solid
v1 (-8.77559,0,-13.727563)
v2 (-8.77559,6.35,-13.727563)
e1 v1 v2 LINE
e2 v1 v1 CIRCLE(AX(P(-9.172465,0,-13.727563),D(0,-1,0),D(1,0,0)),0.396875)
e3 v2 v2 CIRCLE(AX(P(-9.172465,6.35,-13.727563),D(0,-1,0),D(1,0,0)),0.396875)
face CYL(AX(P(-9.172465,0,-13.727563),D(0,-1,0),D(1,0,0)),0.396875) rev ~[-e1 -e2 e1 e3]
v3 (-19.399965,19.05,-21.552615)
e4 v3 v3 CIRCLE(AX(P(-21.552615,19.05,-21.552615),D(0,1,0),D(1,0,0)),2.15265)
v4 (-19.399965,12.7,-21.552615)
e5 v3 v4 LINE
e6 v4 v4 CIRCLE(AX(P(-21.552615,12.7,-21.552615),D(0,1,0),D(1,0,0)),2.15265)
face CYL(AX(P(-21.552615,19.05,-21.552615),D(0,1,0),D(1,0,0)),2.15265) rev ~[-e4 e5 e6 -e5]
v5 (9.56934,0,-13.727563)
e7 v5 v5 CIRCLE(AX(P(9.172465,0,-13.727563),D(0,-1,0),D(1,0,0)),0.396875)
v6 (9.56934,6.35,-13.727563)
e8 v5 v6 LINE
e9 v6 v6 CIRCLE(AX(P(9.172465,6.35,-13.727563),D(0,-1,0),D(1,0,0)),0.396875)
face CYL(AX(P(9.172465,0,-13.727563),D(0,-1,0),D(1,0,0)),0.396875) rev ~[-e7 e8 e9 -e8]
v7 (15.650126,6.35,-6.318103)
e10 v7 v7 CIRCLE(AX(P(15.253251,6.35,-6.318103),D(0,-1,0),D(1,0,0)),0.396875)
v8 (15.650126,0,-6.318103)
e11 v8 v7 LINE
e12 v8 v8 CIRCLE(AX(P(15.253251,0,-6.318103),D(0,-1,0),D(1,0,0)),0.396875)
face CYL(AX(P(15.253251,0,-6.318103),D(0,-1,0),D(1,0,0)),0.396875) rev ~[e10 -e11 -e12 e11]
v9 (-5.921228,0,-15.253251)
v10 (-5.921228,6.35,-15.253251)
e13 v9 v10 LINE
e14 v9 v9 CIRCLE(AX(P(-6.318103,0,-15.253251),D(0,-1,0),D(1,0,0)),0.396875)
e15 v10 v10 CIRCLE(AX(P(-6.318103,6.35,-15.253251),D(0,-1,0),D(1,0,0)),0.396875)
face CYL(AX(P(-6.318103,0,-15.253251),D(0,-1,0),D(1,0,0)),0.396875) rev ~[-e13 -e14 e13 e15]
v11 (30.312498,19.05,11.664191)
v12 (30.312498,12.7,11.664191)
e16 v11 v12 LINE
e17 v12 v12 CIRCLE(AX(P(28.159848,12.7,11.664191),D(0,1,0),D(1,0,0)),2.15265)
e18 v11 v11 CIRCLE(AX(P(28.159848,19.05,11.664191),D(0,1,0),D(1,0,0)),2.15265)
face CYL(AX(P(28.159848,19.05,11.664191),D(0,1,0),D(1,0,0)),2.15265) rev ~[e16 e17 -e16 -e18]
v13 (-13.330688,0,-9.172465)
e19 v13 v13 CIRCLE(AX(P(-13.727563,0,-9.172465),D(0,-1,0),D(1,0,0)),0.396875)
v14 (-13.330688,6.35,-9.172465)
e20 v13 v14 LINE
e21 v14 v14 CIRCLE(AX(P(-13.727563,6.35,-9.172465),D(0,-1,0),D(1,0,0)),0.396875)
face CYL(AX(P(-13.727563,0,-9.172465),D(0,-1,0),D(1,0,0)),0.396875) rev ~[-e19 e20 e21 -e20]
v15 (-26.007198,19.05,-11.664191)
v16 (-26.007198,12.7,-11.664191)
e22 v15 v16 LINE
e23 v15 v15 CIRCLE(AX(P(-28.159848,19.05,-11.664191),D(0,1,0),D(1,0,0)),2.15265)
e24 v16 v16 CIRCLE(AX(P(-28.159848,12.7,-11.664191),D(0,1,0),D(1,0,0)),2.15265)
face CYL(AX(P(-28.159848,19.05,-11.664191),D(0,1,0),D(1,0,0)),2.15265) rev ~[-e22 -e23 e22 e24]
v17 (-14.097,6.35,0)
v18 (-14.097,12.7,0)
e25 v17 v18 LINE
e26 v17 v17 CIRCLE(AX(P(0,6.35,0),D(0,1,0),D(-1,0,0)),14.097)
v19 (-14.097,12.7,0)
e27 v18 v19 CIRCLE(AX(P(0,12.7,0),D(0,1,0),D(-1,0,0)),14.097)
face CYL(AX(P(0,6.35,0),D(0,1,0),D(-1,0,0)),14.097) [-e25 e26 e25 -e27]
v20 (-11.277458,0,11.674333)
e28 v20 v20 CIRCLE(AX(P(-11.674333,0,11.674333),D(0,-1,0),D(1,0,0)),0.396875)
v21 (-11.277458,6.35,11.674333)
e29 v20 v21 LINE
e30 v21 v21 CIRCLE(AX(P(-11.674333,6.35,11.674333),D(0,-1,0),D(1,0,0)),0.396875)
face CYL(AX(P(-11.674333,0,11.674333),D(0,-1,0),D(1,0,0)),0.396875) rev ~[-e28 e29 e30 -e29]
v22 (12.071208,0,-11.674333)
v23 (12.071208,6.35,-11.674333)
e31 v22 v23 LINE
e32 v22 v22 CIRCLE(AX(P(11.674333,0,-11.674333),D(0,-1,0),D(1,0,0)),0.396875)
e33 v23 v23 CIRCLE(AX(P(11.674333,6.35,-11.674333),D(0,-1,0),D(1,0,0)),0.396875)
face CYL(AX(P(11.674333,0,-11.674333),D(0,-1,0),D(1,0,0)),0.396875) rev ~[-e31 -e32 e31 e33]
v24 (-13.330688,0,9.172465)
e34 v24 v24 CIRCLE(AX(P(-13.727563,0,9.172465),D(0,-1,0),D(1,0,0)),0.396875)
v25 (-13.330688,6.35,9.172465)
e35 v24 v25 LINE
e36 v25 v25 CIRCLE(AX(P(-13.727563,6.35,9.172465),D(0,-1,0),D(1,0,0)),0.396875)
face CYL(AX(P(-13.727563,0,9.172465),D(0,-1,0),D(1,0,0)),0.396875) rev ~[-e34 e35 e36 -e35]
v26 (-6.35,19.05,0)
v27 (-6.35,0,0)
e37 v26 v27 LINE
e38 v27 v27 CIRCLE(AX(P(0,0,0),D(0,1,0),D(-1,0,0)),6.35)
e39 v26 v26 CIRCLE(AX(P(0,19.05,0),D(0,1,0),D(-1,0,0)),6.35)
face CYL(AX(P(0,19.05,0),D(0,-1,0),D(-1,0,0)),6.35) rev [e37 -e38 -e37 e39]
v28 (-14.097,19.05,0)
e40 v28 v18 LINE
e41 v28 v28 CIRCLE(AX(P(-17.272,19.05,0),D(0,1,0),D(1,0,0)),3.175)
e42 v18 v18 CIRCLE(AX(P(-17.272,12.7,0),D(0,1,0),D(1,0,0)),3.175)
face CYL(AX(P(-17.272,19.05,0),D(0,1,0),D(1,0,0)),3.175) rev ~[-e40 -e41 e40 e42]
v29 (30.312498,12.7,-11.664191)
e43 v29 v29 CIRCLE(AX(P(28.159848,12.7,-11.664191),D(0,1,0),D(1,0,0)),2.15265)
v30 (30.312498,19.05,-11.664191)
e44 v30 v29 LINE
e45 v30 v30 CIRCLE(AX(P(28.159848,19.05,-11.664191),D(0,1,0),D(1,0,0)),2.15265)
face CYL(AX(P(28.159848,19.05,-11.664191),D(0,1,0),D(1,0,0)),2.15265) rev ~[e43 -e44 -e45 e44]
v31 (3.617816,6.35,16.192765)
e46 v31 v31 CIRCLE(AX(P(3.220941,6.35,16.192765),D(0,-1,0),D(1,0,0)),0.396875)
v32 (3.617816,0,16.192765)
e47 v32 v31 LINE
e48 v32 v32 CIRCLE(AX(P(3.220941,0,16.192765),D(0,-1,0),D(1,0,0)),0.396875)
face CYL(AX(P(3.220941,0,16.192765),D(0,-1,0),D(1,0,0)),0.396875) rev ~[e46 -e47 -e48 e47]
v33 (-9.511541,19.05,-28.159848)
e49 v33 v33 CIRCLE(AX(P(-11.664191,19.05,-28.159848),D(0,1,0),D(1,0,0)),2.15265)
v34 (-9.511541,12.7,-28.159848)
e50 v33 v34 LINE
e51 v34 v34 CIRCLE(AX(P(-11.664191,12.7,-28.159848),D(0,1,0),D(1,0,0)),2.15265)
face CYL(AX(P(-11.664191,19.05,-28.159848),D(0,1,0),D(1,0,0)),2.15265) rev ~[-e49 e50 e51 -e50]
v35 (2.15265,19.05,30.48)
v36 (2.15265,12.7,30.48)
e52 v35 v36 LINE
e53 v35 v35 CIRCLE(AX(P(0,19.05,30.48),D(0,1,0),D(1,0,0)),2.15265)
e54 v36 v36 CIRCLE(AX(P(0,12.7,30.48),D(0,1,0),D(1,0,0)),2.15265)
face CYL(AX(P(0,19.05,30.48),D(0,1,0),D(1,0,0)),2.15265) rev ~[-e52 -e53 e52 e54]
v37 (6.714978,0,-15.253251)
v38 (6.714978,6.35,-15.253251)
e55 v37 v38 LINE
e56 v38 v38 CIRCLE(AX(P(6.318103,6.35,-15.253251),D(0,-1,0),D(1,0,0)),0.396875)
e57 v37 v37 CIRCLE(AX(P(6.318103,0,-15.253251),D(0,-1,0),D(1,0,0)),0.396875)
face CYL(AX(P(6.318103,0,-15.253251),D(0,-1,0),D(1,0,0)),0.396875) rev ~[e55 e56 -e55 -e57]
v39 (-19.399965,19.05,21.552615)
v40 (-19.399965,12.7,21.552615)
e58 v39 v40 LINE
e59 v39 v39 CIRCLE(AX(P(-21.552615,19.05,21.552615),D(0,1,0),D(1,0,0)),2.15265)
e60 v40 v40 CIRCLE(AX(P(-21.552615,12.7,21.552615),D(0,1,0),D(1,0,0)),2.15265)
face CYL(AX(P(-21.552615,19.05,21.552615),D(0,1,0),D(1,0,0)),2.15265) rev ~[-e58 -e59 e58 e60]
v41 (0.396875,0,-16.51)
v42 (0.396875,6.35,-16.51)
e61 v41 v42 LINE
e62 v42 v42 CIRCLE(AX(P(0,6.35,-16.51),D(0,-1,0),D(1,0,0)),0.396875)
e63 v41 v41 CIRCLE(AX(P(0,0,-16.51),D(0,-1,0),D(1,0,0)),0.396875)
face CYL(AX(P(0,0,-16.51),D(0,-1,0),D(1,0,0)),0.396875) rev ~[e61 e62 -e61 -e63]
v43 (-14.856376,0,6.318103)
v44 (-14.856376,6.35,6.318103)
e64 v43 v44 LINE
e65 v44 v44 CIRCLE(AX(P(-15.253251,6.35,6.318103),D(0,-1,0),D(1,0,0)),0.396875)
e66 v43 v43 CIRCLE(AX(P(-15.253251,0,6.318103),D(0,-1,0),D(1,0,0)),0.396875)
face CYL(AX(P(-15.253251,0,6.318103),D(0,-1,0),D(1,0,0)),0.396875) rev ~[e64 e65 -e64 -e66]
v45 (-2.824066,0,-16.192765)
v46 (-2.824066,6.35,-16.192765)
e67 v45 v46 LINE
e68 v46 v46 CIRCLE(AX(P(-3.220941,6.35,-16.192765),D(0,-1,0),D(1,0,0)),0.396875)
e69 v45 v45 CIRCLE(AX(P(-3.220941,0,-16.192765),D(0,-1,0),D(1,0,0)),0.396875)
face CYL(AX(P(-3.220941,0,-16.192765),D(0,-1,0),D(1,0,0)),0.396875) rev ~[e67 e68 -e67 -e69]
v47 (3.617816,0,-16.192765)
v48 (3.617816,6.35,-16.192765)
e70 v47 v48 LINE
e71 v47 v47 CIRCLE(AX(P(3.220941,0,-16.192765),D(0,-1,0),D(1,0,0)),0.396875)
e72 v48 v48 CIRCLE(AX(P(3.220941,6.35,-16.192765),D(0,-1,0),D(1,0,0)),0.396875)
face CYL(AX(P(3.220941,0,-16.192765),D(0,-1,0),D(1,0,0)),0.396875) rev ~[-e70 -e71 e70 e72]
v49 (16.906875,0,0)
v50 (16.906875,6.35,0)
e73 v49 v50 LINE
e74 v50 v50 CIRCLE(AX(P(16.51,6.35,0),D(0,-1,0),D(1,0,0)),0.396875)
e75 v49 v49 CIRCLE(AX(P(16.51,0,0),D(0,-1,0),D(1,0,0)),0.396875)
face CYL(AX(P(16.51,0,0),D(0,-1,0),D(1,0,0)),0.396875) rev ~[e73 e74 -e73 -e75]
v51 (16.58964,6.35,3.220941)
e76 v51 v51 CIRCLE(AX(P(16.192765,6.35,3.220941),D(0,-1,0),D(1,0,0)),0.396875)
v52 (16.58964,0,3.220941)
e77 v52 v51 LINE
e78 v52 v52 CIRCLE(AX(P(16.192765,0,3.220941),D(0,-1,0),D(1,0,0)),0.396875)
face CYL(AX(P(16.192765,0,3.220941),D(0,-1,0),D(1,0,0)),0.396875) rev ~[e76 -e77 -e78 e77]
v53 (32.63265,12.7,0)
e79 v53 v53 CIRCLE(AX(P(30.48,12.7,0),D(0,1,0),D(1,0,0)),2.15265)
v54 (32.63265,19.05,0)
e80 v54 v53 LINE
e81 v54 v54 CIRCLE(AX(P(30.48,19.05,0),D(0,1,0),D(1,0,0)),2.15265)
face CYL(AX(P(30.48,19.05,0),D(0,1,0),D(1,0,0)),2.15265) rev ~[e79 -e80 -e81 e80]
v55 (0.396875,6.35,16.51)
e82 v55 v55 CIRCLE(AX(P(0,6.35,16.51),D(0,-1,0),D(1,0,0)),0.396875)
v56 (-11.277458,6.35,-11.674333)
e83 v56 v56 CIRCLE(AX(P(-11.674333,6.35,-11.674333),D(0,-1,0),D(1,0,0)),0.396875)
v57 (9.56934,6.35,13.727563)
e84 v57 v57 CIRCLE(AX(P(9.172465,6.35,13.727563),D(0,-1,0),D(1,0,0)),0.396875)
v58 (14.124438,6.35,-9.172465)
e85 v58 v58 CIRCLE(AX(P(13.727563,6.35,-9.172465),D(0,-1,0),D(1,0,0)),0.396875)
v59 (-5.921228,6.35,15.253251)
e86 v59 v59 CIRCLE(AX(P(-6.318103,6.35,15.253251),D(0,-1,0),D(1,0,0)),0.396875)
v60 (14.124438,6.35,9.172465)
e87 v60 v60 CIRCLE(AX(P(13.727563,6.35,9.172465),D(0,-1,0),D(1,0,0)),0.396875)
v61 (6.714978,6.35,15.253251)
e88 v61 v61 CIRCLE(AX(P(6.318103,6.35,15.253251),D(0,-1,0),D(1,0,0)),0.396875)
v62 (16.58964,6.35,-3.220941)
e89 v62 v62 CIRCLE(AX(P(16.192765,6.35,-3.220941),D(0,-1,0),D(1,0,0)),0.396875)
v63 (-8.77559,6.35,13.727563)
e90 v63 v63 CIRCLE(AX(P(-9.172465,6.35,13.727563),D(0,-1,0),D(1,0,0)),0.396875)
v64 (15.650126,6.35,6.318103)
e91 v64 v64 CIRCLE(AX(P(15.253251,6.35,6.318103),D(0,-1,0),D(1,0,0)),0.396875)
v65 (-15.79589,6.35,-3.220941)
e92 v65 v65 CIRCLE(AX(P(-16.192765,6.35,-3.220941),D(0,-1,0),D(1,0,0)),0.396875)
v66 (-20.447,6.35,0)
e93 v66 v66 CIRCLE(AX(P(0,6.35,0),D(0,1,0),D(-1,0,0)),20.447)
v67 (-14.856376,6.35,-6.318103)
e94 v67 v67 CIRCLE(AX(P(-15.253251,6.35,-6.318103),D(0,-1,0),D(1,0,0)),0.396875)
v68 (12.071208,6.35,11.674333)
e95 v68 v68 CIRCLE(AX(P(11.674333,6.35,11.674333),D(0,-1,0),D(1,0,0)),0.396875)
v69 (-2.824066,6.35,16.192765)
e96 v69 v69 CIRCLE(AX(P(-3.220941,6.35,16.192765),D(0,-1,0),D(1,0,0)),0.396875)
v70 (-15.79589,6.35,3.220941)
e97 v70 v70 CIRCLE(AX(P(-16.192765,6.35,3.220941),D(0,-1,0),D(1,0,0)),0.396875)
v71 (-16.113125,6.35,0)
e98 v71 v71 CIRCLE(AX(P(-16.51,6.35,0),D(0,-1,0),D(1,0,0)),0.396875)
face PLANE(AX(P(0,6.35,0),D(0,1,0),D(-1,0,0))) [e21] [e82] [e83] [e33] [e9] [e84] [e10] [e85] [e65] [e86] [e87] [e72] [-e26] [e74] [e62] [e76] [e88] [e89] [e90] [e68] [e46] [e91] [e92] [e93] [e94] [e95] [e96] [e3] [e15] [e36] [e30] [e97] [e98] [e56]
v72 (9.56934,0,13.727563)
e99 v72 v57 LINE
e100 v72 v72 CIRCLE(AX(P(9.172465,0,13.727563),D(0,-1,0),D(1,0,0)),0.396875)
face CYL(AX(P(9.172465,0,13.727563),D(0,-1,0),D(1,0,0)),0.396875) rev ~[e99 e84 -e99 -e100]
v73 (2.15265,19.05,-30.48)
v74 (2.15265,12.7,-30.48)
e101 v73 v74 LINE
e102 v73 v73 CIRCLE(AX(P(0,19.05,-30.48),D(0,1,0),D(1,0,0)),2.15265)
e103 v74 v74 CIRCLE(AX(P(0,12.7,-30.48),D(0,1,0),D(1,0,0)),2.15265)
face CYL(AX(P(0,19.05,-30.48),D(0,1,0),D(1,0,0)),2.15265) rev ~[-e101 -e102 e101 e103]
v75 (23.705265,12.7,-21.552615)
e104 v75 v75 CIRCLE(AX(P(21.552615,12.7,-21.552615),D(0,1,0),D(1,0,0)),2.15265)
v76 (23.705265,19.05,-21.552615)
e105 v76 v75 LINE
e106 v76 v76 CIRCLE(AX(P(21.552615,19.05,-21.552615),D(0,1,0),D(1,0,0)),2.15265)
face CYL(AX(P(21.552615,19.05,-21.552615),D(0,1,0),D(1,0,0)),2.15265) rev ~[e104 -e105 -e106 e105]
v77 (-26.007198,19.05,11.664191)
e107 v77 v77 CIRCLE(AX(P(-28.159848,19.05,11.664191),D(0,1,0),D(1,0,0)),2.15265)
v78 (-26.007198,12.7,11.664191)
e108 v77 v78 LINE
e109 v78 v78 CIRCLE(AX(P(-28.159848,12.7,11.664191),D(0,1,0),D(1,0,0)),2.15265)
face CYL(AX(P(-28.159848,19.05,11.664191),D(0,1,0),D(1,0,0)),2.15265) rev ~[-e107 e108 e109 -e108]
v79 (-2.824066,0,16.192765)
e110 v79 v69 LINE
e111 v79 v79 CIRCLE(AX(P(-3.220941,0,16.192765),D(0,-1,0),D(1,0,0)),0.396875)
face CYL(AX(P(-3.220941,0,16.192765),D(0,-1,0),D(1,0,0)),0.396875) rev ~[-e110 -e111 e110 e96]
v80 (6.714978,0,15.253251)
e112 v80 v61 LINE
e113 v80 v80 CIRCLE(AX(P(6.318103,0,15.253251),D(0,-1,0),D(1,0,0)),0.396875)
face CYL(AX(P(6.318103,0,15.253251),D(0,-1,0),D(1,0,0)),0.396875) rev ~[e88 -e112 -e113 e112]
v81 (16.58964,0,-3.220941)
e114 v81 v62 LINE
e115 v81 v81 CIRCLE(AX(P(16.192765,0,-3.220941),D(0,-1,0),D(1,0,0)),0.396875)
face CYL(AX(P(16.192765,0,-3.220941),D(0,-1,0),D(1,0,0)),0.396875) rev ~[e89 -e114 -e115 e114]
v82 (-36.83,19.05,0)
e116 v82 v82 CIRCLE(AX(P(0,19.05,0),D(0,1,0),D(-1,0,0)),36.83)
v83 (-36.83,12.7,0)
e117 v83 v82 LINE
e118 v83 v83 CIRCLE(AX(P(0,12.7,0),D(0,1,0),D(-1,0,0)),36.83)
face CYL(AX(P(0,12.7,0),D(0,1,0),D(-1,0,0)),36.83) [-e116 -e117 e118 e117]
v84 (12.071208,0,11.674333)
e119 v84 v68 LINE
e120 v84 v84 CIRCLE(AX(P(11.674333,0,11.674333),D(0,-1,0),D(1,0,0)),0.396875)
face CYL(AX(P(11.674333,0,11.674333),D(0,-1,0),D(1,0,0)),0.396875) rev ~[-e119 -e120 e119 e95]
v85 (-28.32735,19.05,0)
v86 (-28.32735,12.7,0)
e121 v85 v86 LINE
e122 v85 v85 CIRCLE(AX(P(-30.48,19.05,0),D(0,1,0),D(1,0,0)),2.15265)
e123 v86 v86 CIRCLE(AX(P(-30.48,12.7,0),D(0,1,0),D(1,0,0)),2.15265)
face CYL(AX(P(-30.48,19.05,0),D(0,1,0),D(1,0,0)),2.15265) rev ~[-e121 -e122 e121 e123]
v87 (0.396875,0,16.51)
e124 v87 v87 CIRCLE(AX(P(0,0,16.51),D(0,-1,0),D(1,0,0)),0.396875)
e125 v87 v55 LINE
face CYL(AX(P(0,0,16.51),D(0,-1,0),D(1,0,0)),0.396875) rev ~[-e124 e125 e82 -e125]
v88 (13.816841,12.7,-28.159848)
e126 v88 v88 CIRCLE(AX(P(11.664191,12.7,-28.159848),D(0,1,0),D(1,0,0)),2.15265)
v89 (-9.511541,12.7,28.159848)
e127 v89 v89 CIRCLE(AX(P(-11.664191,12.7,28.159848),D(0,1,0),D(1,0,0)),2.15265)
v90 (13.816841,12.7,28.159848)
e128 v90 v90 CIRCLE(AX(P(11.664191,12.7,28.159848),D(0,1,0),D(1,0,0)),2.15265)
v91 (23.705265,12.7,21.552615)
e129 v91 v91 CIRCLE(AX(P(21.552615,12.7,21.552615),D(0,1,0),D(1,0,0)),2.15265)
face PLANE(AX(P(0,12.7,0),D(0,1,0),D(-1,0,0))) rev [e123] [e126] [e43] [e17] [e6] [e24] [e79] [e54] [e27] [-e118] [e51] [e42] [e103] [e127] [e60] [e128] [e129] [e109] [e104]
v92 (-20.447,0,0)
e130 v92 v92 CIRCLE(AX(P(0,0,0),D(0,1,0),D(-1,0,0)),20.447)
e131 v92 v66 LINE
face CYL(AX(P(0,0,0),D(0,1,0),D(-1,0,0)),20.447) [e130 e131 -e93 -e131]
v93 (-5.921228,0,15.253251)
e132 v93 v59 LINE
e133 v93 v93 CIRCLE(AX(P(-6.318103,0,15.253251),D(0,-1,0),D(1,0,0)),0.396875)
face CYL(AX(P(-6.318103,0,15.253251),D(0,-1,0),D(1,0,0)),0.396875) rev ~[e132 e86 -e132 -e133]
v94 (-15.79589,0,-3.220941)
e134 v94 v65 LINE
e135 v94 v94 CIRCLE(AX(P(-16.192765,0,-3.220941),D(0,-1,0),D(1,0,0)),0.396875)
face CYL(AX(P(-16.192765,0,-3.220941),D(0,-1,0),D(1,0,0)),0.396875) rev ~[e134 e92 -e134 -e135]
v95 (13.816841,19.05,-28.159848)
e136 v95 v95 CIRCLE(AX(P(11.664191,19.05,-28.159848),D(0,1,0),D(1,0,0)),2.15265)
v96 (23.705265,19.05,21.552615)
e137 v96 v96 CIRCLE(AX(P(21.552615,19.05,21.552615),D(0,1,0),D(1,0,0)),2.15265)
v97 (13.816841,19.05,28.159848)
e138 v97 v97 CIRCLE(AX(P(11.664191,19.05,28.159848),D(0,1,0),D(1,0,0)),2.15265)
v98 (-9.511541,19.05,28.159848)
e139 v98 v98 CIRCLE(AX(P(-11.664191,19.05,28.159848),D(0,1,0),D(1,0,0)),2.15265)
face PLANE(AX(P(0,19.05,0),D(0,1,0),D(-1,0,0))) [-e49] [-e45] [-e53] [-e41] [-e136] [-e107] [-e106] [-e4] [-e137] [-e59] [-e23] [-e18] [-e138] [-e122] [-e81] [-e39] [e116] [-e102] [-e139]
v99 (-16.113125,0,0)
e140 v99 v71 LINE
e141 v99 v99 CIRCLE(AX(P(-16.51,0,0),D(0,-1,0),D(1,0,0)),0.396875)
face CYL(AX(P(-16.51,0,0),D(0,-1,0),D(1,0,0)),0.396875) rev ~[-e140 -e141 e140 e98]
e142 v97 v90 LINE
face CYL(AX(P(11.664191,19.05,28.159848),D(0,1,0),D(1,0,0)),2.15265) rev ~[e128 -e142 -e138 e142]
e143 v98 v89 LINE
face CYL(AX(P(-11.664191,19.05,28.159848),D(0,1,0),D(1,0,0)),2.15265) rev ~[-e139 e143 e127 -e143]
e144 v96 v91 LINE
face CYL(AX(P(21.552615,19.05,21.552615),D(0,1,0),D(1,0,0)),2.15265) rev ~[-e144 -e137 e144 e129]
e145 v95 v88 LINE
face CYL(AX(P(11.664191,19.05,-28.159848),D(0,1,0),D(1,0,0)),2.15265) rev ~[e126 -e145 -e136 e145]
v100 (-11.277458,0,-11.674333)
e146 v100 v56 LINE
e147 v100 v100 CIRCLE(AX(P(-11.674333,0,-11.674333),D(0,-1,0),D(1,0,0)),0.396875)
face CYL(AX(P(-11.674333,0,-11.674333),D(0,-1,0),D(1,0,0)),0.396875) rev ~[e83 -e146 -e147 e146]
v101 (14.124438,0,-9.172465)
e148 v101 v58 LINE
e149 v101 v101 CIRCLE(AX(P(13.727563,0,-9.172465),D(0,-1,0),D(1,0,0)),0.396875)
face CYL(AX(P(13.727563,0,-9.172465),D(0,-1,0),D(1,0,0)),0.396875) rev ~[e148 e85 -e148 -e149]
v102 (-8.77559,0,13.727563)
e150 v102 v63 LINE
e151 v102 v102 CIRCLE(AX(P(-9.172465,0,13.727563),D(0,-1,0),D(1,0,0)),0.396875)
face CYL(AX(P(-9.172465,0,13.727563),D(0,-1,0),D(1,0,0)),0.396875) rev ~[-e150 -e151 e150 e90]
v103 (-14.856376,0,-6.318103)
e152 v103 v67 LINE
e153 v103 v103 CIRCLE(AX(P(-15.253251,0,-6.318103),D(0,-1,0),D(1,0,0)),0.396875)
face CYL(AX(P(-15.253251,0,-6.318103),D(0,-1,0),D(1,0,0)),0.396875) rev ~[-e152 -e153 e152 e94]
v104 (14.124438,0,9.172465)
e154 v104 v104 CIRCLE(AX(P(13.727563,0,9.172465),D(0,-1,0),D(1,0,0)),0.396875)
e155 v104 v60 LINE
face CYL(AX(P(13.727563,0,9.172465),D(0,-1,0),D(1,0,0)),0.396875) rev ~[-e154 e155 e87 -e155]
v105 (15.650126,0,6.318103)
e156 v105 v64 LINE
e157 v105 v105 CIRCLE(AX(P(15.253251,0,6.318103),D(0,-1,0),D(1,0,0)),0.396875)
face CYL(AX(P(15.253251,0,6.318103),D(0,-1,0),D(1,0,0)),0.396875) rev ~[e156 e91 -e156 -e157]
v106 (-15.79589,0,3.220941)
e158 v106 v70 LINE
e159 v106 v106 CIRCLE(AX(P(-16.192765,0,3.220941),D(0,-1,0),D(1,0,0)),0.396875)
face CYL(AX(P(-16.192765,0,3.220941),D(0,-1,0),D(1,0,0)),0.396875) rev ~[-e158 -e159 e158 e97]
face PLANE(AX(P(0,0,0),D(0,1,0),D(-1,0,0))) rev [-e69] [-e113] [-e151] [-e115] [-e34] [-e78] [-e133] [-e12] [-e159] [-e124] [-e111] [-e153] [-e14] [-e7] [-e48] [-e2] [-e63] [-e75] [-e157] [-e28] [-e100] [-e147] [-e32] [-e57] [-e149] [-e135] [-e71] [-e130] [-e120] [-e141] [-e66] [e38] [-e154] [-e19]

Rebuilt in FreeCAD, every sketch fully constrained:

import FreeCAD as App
import Part
import Sketcher

V = App.Vector
Q = App.Units.Quantity


def add_polygon(sketch, points):
    """Adds a closed chain of lines whose ends are joined by coincident constraints."""
    first, n = sketch.GeometryCount, len(points)
    for a, b in zip(points, points[1:] + points[:1]):
        sketch.addGeometry(Part.LineSegment(App.Vector(*a, 0), App.Vector(*b, 0)), False)
    for i in range(n):
        sketch.addConstraint(Sketcher.Constraint("Coincident", first + i, 2, first + (i + 1) % n, 1))

doc = App.newDocument("Part")
params = doc.addObject("Spreadsheet::Sheet", "Params")
for row, (alias, value) in enumerate([
    ("sketch1_width", "1.2 in"),
    ("sketch1_width2", "0.25 in"),
    ("sketch1_width3", "0.895 in"),
    ("revolution_angle", "360 deg"),
    ("sketch18_diameter", "0.25 in"),
    ("sketch19_diameter", "0.03125 in"),
    ("pocket18_length", "0.25 in"),
], start=1):
    params.set(f"A{row}", alias)
    params.set(f"B{row}", "=" + value)
    params.setAlias(f"B{row}", alias)

body = doc.addObject("PartDesign::Body", "Body")

# Sketch on XY plane
sketch1 = doc.addObject("Sketcher::SketchObject", "Sketch")
body.addObject(sketch1)
sketch1.AttachmentSupport = (doc.XY_Plane, [""])
sketch1.MapMode = "FlatFace"
add_polygon(sketch1, [(-6, 19), (-37, 19), (-37, 13), (-14, 13), (-14, 6), (-20, 6), (-20, 0), (-6, 0)])  # lines 0-7
sketch1.addConstraint(Sketcher.Constraint("Horizontal", 0))
sketch1.addConstraint(Sketcher.Constraint("Vertical", 1))
sketch1.addConstraint(Sketcher.Constraint("Horizontal", 2))
sketch1.addConstraint(Sketcher.Constraint("Vertical", 3))
sketch1.addConstraint(Sketcher.Constraint("Horizontal", 4))
sketch1.addConstraint(Sketcher.Constraint("Vertical", 5))
sketch1.addConstraint(Sketcher.Constraint("Horizontal", 6))
sketch1.addConstraint(Sketcher.Constraint("Vertical", 7))
sketch1.addConstraint(Sketcher.Constraint("PointOnObject", 5, 2, -1))
sketch1.addConstraint(Sketcher.Constraint("Equal", 4, 1))
sketch1.addConstraint(Sketcher.Constraint("Equal", 1, 3))
sketch1.addConstraint(Sketcher.Constraint("Equal", 3, 5))
sketch1.addConstraint(Sketcher.Constraint("DistanceX", 0, 2, 0, 1, Q("1.2 in")))
sketch1.addConstraint(Sketcher.Constraint("DistanceX", 4, 2, 4, 1, Q("0.25 in")))
sketch1.addConstraint(Sketcher.Constraint("DistanceX", 2, 1, 2, 2, Q("0.895 in")))
sketch1.addConstraint(Sketcher.Constraint("DistanceX", 0, 2, -1, 1, Q("1.45 in")))
sketch1.setExpression("Constraints[20]", "Params.sketch1_width")
sketch1.setExpression("Constraints[21]", "Params.sketch1_width2")
sketch1.setExpression("Constraints[22]", "Params.sketch1_width3")
revolution = doc.addObject("PartDesign::Revolution", "Revolution")
body.addObject(revolution)
revolution.Profile = sketch1
revolution.ReferenceAxis = (sketch1, ["V_Axis"])
revolution.setExpression("Angle", "Params.revolution_angle")

# Sketch on XZ plane
sketch2 = doc.addObject("Sketcher::SketchObject", "Sketch001")
body.addObject(sketch2)
sketch2.AttachmentSupport = (doc.XZ_Plane, [""])
sketch2.MapMode = "FlatFace"
sketch2.AttachmentOffset = App.Placement(V(0, 0, -0.75 * 25.4), App.Rotation())
sketch2.addGeometry(Part.Circle(V(0, -30.5, 0), V(0, 0, 1), 2.2), False)
sketch2.addConstraint(Sketcher.Constraint("PointOnObject", 0, 3, -2))
sketch2.addConstraint(Sketcher.Constraint("Diameter", 0, Q("0.1695 in")))
sketch2.addConstraint(Sketcher.Constraint("DistanceY", 0, 3, -1, 1, Q("1.2 in")))
pocket1 = doc.addObject("PartDesign::Pocket", "Pocket")
body.addObject(pocket1)
pocket1.Profile = sketch2
pocket1.Type = "UpToFirst"
pocket1.Reversed = True

# Sketch on XZ plane
sketch3 = doc.addObject("Sketcher::SketchObject", "Sketch002")
body.addObject(sketch3)
sketch3.AttachmentSupport = (doc.XZ_Plane, [""])
sketch3.MapMode = "FlatFace"
sketch3.AttachmentOffset = App.Placement(V(0, 0, -0.75 * 25.4), App.Rotation())
sketch3.addGeometry(Part.Circle(V(11.7, -28.2, 0), V(0, 0, 1), 2.2), False)
sketch3.addConstraint(Sketcher.Constraint("Diameter", 0, Q("0.1695 in")))
sketch3.addConstraint(Sketcher.Constraint("DistanceX", -1, 1, 0, 3, 11.664191))
sketch3.addConstraint(Sketcher.Constraint("DistanceY", 0, 3, -1, 1, 28.159848))
pocket2 = doc.addObject("PartDesign::Pocket", "Pocket001")
body.addObject(pocket2)
pocket2.Profile = sketch3
pocket2.Type = "UpToFirst"
pocket2.Reversed = True

# Sketch on XZ plane
sketch4 = doc.addObject("Sketcher::SketchObject", "Sketch003")
body.addObject(sketch4)
sketch4.AttachmentSupport = (doc.XZ_Plane, [""])
sketch4.MapMode = "FlatFace"
sketch4.AttachmentOffset = App.Placement(V(0, 0, -0.75 * 25.4), App.Rotation())
sketch4.addGeometry(Part.Circle(V(21.6, -21.6, 0), V(0, 0, 1), 2.2), False)
sketch4.addConstraint(Sketcher.Constraint("Diameter", 0, Q("0.1695 in")))
sketch4.addConstraint(Sketcher.Constraint("DistanceX", -1, 1, 0, 3, 21.552615))
sketch4.addConstraint(Sketcher.Constraint("DistanceY", 0, 3, -1, 1, 21.552615))
pocket3 = doc.addObject("PartDesign::Pocket", "Pocket002")
body.addObject(pocket3)
pocket3.Profile = sketch4
pocket3.Type = "UpToFirst"
pocket3.Reversed = True

# Sketch on XZ plane
sketch5 = doc.addObject("Sketcher::SketchObject", "Sketch004")
body.addObject(sketch5)
sketch5.AttachmentSupport = (doc.XZ_Plane, [""])
sketch5.MapMode = "FlatFace"
sketch5.AttachmentOffset = App.Placement(V(0, 0, -0.75 * 25.4), App.Rotation())
sketch5.addGeometry(Part.Circle(V(28.2, -11.7, 0), V(0, 0, 1), 2.2), False)
sketch5.addConstraint(Sketcher.Constraint("Diameter", 0, Q("0.1695 in")))
sketch5.addConstraint(Sketcher.Constraint("DistanceX", -1, 1, 0, 3, 28.159848))
sketch5.addConstraint(Sketcher.Constraint("DistanceY", 0, 3, -1, 1, 11.664191))
pocket4 = doc.addObject("PartDesign::Pocket", "Pocket003")
body.addObject(pocket4)
pocket4.Profile = sketch5
pocket4.Type = "UpToFirst"
pocket4.Reversed = True

# Sketch on XZ plane
sketch6 = doc.addObject("Sketcher::SketchObject", "Sketch005")
body.addObject(sketch6)
sketch6.AttachmentSupport = (doc.XZ_Plane, [""])
sketch6.MapMode = "FlatFace"
sketch6.AttachmentOffset = App.Placement(V(0, 0, -0.75 * 25.4), App.Rotation())
sketch6.addGeometry(Part.Circle(V(30.5, 0, 0), V(0, 0, 1), 2.2), False)
sketch6.addConstraint(Sketcher.Constraint("PointOnObject", 0, 3, -1))
sketch6.addConstraint(Sketcher.Constraint("Diameter", 0, Q("0.1695 in")))
sketch6.addConstraint(Sketcher.Constraint("DistanceX", -1, 1, 0, 3, Q("1.2 in")))
pocket5 = doc.addObject("PartDesign::Pocket", "Pocket004")
body.addObject(pocket5)
pocket5.Profile = sketch6
pocket5.Type = "UpToFirst"
pocket5.Reversed = True

# Sketch on XZ plane
sketch7 = doc.addObject("Sketcher::SketchObject", "Sketch006")
body.addObject(sketch7)
sketch7.AttachmentSupport = (doc.XZ_Plane, [""])
sketch7.MapMode = "FlatFace"
sketch7.AttachmentOffset = App.Placement(V(0, 0, -0.75 * 25.4), App.Rotation())
sketch7.addGeometry(Part.Circle(V(28.2, 11.7, 0), V(0, 0, 1), 2.2), False)
sketch7.addConstraint(Sketcher.Constraint("Diameter", 0, Q("0.1695 in")))
sketch7.addConstraint(Sketcher.Constraint("DistanceX", -1, 1, 0, 3, 28.159848))
sketch7.addConstraint(Sketcher.Constraint("DistanceY", -1, 1, 0, 3, 11.664191))
pocket6 = doc.addObject("PartDesign::Pocket", "Pocket005")
body.addObject(pocket6)
pocket6.Profile = sketch7
pocket6.Type = "UpToFirst"
pocket6.Reversed = True

# Sketch on XZ plane
sketch8 = doc.addObject("Sketcher::SketchObject", "Sketch007")
body.addObject(sketch8)
sketch8.AttachmentSupport = (doc.XZ_Plane, [""])
sketch8.MapMode = "FlatFace"
sketch8.AttachmentOffset = App.Placement(V(0, 0, -0.75 * 25.4), App.Rotation())
sketch8.addGeometry(Part.Circle(V(21.6, 21.6, 0), V(0, 0, 1), 2.2), False)
sketch8.addConstraint(Sketcher.Constraint("Diameter", 0, Q("0.1695 in")))
sketch8.addConstraint(Sketcher.Constraint("DistanceX", -1, 1, 0, 3, 21.552615))
sketch8.addConstraint(Sketcher.Constraint("DistanceY", -1, 1, 0, 3, 21.552615))
pocket7 = doc.addObject("PartDesign::Pocket", "Pocket006")
body.addObject(pocket7)
pocket7.Profile = sketch8
pocket7.Type = "UpToFirst"
pocket7.Reversed = True

# Sketch on XZ plane
sketch9 = doc.addObject("Sketcher::SketchObject", "Sketch008")
body.addObject(sketch9)
sketch9.AttachmentSupport = (doc.XZ_Plane, [""])
sketch9.MapMode = "FlatFace"
sketch9.AttachmentOffset = App.Placement(V(0, 0, -0.75 * 25.4), App.Rotation())
sketch9.addGeometry(Part.Circle(V(11.7, 28.2, 0), V(0, 0, 1), 2.2), False)
sketch9.addConstraint(Sketcher.Constraint("Diameter", 0, Q("0.1695 in")))
sketch9.addConstraint(Sketcher.Constraint("DistanceX", -1, 1, 0, 3, 11.664191))
sketch9.addConstraint(Sketcher.Constraint("DistanceY", -1, 1, 0, 3, 28.159848))
pocket8 = doc.addObject("PartDesign::Pocket", "Pocket007")
body.addObject(pocket8)
pocket8.Profile = sketch9
pocket8.Type = "UpToFirst"
pocket8.Reversed = True

# Sketch on XZ plane
sketch10 = doc.addObject("Sketcher::SketchObject", "Sketch009")
body.addObject(sketch10)
sketch10.AttachmentSupport = (doc.XZ_Plane, [""])
sketch10.MapMode = "FlatFace"
sketch10.AttachmentOffset = App.Placement(V(0, 0, -0.75 * 25.4), App.Rotation())
sketch10.addGeometry(Part.Circle(V(0, 30.5, 0), V(0, 0, 1), 2.2), False)
sketch10.addConstraint(Sketcher.Constraint("PointOnObject", 0, 3, -2))
sketch10.addConstraint(Sketcher.Constraint("Diameter", 0, Q("0.1695 in")))
sketch10.addConstraint(Sketcher.Constraint("DistanceY", -1, 1, 0, 3, Q("1.2 in")))
pocket9 = doc.addObject("PartDesign::Pocket", "Pocket008")
body.addObject(pocket9)
pocket9.Profile = sketch10
pocket9.Type = "UpToFirst"
pocket9.Reversed = True

# Sketch on XZ plane
sketch11 = doc.addObject("Sketcher::SketchObject", "Sketch010")
body.addObject(sketch11)
sketch11.AttachmentSupport = (doc.XZ_Plane, [""])
sketch11.MapMode = "FlatFace"
sketch11.AttachmentOffset = App.Placement(V(0, 0, -0.75 * 25.4), App.Rotation())
sketch11.addGeometry(Part.Circle(V(-11.7, 28.2, 0), V(0, 0, 1), 2.2), False)
sketch11.addConstraint(Sketcher.Constraint("Diameter", 0, Q("0.1695 in")))
sketch11.addConstraint(Sketcher.Constraint("DistanceX", 0, 3, -1, 1, 11.664191))
sketch11.addConstraint(Sketcher.Constraint("DistanceY", -1, 1, 0, 3, 28.159848))
pocket10 = doc.addObject("PartDesign::Pocket", "Pocket009")
body.addObject(pocket10)
pocket10.Profile = sketch11
pocket10.Type = "UpToFirst"
pocket10.Reversed = True

# Sketch on XZ plane
sketch12 = doc.addObject("Sketcher::SketchObject", "Sketch011")
body.addObject(sketch12)
sketch12.AttachmentSupport = (doc.XZ_Plane, [""])
sketch12.MapMode = "FlatFace"
sketch12.AttachmentOffset = App.Placement(V(0, 0, -0.75 * 25.4), App.Rotation())
sketch12.addGeometry(Part.Circle(V(-21.6, 21.6, 0), V(0, 0, 1), 2.2), False)
sketch12.addConstraint(Sketcher.Constraint("Diameter", 0, Q("0.1695 in")))
sketch12.addConstraint(Sketcher.Constraint("DistanceX", 0, 3, -1, 1, 21.552615))
sketch12.addConstraint(Sketcher.Constraint("DistanceY", -1, 1, 0, 3, 21.552615))
pocket11 = doc.addObject("PartDesign::Pocket", "Pocket010")
body.addObject(pocket11)
pocket11.Profile = sketch12
pocket11.Type = "UpToFirst"
pocket11.Reversed = True

# Sketch on XZ plane
sketch13 = doc.addObject("Sketcher::SketchObject", "Sketch012")
body.addObject(sketch13)
sketch13.AttachmentSupport = (doc.XZ_Plane, [""])
sketch13.MapMode = "FlatFace"
sketch13.AttachmentOffset = App.Placement(V(0, 0, -0.75 * 25.4), App.Rotation())
sketch13.addGeometry(Part.Circle(V(-28.2, 11.7, 0), V(0, 0, 1), 2.2), False)
sketch13.addConstraint(Sketcher.Constraint("Diameter", 0, Q("0.1695 in")))
sketch13.addConstraint(Sketcher.Constraint("DistanceX", 0, 3, -1, 1, 28.159848))
sketch13.addConstraint(Sketcher.Constraint("DistanceY", -1, 1, 0, 3, 11.664191))
pocket12 = doc.addObject("PartDesign::Pocket", "Pocket011")
body.addObject(pocket12)
pocket12.Profile = sketch13
pocket12.Type = "UpToFirst"
pocket12.Reversed = True

# Sketch on XZ plane
sketch14 = doc.addObject("Sketcher::SketchObject", "Sketch013")
body.addObject(sketch14)
sketch14.AttachmentSupport = (doc.XZ_Plane, [""])
sketch14.MapMode = "FlatFace"
sketch14.AttachmentOffset = App.Placement(V(0, 0, -0.75 * 25.4), App.Rotation())
sketch14.addGeometry(Part.Circle(V(-30.5, 0, 0), V(0, 0, 1), 2.2), False)
sketch14.addConstraint(Sketcher.Constraint("PointOnObject", 0, 3, -1))
sketch14.addConstraint(Sketcher.Constraint("Diameter", 0, Q("0.1695 in")))
sketch14.addConstraint(Sketcher.Constraint("DistanceX", 0, 3, -1, 1, Q("1.2 in")))
pocket13 = doc.addObject("PartDesign::Pocket", "Pocket012")
body.addObject(pocket13)
pocket13.Profile = sketch14
pocket13.Type = "UpToFirst"
pocket13.Reversed = True

# Sketch on XZ plane
sketch15 = doc.addObject("Sketcher::SketchObject", "Sketch014")
body.addObject(sketch15)
sketch15.AttachmentSupport = (doc.XZ_Plane, [""])
sketch15.MapMode = "FlatFace"
sketch15.AttachmentOffset = App.Placement(V(0, 0, -0.75 * 25.4), App.Rotation())
sketch15.addGeometry(Part.Circle(V(-28.2, -11.7, 0), V(0, 0, 1), 2.2), False)
sketch15.addConstraint(Sketcher.Constraint("Diameter", 0, Q("0.1695 in")))
sketch15.addConstraint(Sketcher.Constraint("DistanceX", 0, 3, -1, 1, 28.159848))
sketch15.addConstraint(Sketcher.Constraint("DistanceY", 0, 3, -1, 1, 11.664191))
pocket14 = doc.addObject("PartDesign::Pocket", "Pocket013")
body.addObject(pocket14)
pocket14.Profile = sketch15
pocket14.Type = "UpToFirst"
pocket14.Reversed = True

# Sketch on XZ plane
sketch16 = doc.addObject("Sketcher::SketchObject", "Sketch015")
body.addObject(sketch16)
sketch16.AttachmentSupport = (doc.XZ_Plane, [""])
sketch16.MapMode = "FlatFace"
sketch16.AttachmentOffset = App.Placement(V(0, 0, -0.75 * 25.4), App.Rotation())
sketch16.addGeometry(Part.Circle(V(-21.6, -21.6, 0), V(0, 0, 1), 2.2), False)
sketch16.addConstraint(Sketcher.Constraint("Diameter", 0, Q("0.1695 in")))
sketch16.addConstraint(Sketcher.Constraint("DistanceX", 0, 3, -1, 1, 21.552615))
sketch16.addConstraint(Sketcher.Constraint("DistanceY", 0, 3, -1, 1, 21.552615))
pocket15 = doc.addObject("PartDesign::Pocket", "Pocket014")
body.addObject(pocket15)
pocket15.Profile = sketch16
pocket15.Type = "UpToFirst"
pocket15.Reversed = True

# Sketch on XZ plane
sketch17 = doc.addObject("Sketcher::SketchObject", "Sketch016")
body.addObject(sketch17)
sketch17.AttachmentSupport = (doc.XZ_Plane, [""])
sketch17.MapMode = "FlatFace"
sketch17.AttachmentOffset = App.Placement(V(0, 0, -0.75 * 25.4), App.Rotation())
sketch17.addGeometry(Part.Circle(V(-11.7, -28.2, 0), V(0, 0, 1), 2.2), False)
sketch17.addConstraint(Sketcher.Constraint("Diameter", 0, Q("0.1695 in")))
sketch17.addConstraint(Sketcher.Constraint("DistanceX", 0, 3, -1, 1, 11.664191))
sketch17.addConstraint(Sketcher.Constraint("DistanceY", 0, 3, -1, 1, 28.159848))
pocket16 = doc.addObject("PartDesign::Pocket", "Pocket015")
body.addObject(pocket16)
pocket16.Profile = sketch17
pocket16.Type = "UpToFirst"
pocket16.Reversed = True

# Sketch on XZ plane
sketch18 = doc.addObject("Sketcher::SketchObject", "Sketch017")
body.addObject(sketch18)
sketch18.AttachmentSupport = (doc.XZ_Plane, [""])
sketch18.MapMode = "FlatFace"
sketch18.AttachmentOffset = App.Placement(V(0, 0, -0.75 * 25.4), App.Rotation())
sketch18.addGeometry(Part.Circle(V(-17.3, 0, 0), V(0, 0, 1), 3.2), False)
sketch18.addConstraint(Sketcher.Constraint("PointOnObject", 0, 3, -1))
sketch18.addConstraint(Sketcher.Constraint("Diameter", 0, Q("0.25 in")))
sketch18.addConstraint(Sketcher.Constraint("DistanceX", 0, 3, -1, 1, Q("0.68 in")))
sketch18.setExpression("Constraints[1]", "Params.sketch18_diameter")
pocket17 = doc.addObject("PartDesign::Pocket", "Pocket016")
body.addObject(pocket17)
pocket17.Profile = sketch18
pocket17.Type = "UpToFirst"
pocket17.Reversed = True

# Sketch on XZ plane
sketch19 = doc.addObject("Sketcher::SketchObject", "Sketch018")
body.addObject(sketch19)
sketch19.AttachmentSupport = (doc.XZ_Plane, [""])
sketch19.MapMode = "FlatFace"
sketch19.addGeometry(Part.Circle(V(0, 16.51, 0), V(0, 0, 1), 0.4), False)
sketch19.addGeometry(Part.Circle(V(3.22, 16.19, 0), V(0, 0, 1), 0.4), False)
sketch19.addGeometry(Part.Circle(V(6.32, 15.25, 0), V(0, 0, 1), 0.4), False)
sketch19.addGeometry(Part.Circle(V(9.17, 13.73, 0), V(0, 0, 1), 0.4), False)
sketch19.addGeometry(Part.Circle(V(11.67, 11.67, 0), V(0, 0, 1), 0.4), False)
sketch19.addGeometry(Part.Circle(V(13.73, 9.17, 0), V(0, 0, 1), 0.4), False)
sketch19.addGeometry(Part.Circle(V(15.25, 6.32, 0), V(0, 0, 1), 0.4), False)
sketch19.addGeometry(Part.Circle(V(16.19, 3.22, 0), V(0, 0, 1), 0.4), False)
sketch19.addGeometry(Part.Circle(V(16.51, 0, 0), V(0, 0, 1), 0.4), False)
sketch19.addGeometry(Part.Circle(V(16.19, -3.22, 0), V(0, 0, 1), 0.4), False)
sketch19.addGeometry(Part.Circle(V(15.25, -6.32, 0), V(0, 0, 1), 0.4), False)
sketch19.addGeometry(Part.Circle(V(13.73, -9.17, 0), V(0, 0, 1), 0.4), False)
sketch19.addGeometry(Part.Circle(V(11.67, -11.67, 0), V(0, 0, 1), 0.4), False)
sketch19.addGeometry(Part.Circle(V(9.17, -13.73, 0), V(0, 0, 1), 0.4), False)
sketch19.addGeometry(Part.Circle(V(6.32, -15.25, 0), V(0, 0, 1), 0.4), False)
sketch19.addGeometry(Part.Circle(V(3.22, -16.19, 0), V(0, 0, 1), 0.4), False)
sketch19.addGeometry(Part.Circle(V(0, -16.51, 0), V(0, 0, 1), 0.4), False)
sketch19.addGeometry(Part.Circle(V(-3.22, -16.19, 0), V(0, 0, 1), 0.4), False)
sketch19.addGeometry(Part.Circle(V(-6.32, -15.25, 0), V(0, 0, 1), 0.4), False)
sketch19.addGeometry(Part.Circle(V(-9.17, -13.73, 0), V(0, 0, 1), 0.4), False)
sketch19.addGeometry(Part.Circle(V(-11.67, -11.67, 0), V(0, 0, 1), 0.4), False)
sketch19.addGeometry(Part.Circle(V(-13.73, -9.17, 0), V(0, 0, 1), 0.4), False)
sketch19.addGeometry(Part.Circle(V(-15.25, -6.32, 0), V(0, 0, 1), 0.4), False)
sketch19.addGeometry(Part.Circle(V(-16.19, -3.22, 0), V(0, 0, 1), 0.4), False)
sketch19.addGeometry(Part.Circle(V(-16.51, 0, 0), V(0, 0, 1), 0.4), False)
sketch19.addGeometry(Part.Circle(V(-16.19, 3.22, 0), V(0, 0, 1), 0.4), False)
sketch19.addGeometry(Part.Circle(V(-15.25, 6.32, 0), V(0, 0, 1), 0.4), False)
sketch19.addGeometry(Part.Circle(V(-13.73, 9.17, 0), V(0, 0, 1), 0.4), False)
sketch19.addGeometry(Part.Circle(V(-11.67, 11.67, 0), V(0, 0, 1), 0.4), False)
sketch19.addGeometry(Part.Circle(V(-9.17, 13.73, 0), V(0, 0, 1), 0.4), False)
sketch19.addGeometry(Part.Circle(V(-6.32, 15.25, 0), V(0, 0, 1), 0.4), False)
sketch19.addGeometry(Part.Circle(V(-3.22, 16.19, 0), V(0, 0, 1), 0.4), False)
sketch19.addConstraint(Sketcher.Constraint("Equal", 0, 1))
sketch19.addConstraint(Sketcher.Constraint("Equal", 1, 2))
sketch19.addConstraint(Sketcher.Constraint("Equal", 2, 3))
sketch19.addConstraint(Sketcher.Constraint("Equal", 3, 4))
sketch19.addConstraint(Sketcher.Constraint("Equal", 4, 5))
sketch19.addConstraint(Sketcher.Constraint("Equal", 5, 6))
sketch19.addConstraint(Sketcher.Constraint("Equal", 6, 7))
sketch19.addConstraint(Sketcher.Constraint("Equal", 7, 8))
sketch19.addConstraint(Sketcher.Constraint("Equal", 8, 9))
sketch19.addConstraint(Sketcher.Constraint("Equal", 9, 10))
sketch19.addConstraint(Sketcher.Constraint("Equal", 10, 11))
sketch19.addConstraint(Sketcher.Constraint("Equal", 11, 12))
sketch19.addConstraint(Sketcher.Constraint("Equal", 12, 13))
sketch19.addConstraint(Sketcher.Constraint("Equal", 13, 14))
sketch19.addConstraint(Sketcher.Constraint("Equal", 14, 15))
sketch19.addConstraint(Sketcher.Constraint("Equal", 15, 16))
sketch19.addConstraint(Sketcher.Constraint("Equal", 16, 17))
sketch19.addConstraint(Sketcher.Constraint("Equal", 17, 18))
sketch19.addConstraint(Sketcher.Constraint("Equal", 18, 19))
sketch19.addConstraint(Sketcher.Constraint("Equal", 19, 20))
sketch19.addConstraint(Sketcher.Constraint("Equal", 20, 21))
sketch19.addConstraint(Sketcher.Constraint("Equal", 21, 22))
sketch19.addConstraint(Sketcher.Constraint("Equal", 22, 23))
sketch19.addConstraint(Sketcher.Constraint("Equal", 23, 24))
sketch19.addConstraint(Sketcher.Constraint("Equal", 24, 25))
sketch19.addConstraint(Sketcher.Constraint("Equal", 25, 26))
sketch19.addConstraint(Sketcher.Constraint("Equal", 26, 27))
sketch19.addConstraint(Sketcher.Constraint("Equal", 27, 28))
sketch19.addConstraint(Sketcher.Constraint("Equal", 28, 29))
sketch19.addConstraint(Sketcher.Constraint("Equal", 29, 30))
sketch19.addConstraint(Sketcher.Constraint("Equal", 30, 31))
sketch19.addConstraint(Sketcher.Constraint("Symmetric", 0, 3, 16, 3, -1, 1))
sketch19.addConstraint(Sketcher.Constraint("Symmetric", 1, 3, 17, 3, -1, 1))
sketch19.addConstraint(Sketcher.Constraint("Symmetric", 2, 3, 18, 3, -1, 1))
sketch19.addConstraint(Sketcher.Constraint("Symmetric", 3, 3, 19, 3, -1, 1))
sketch19.addConstraint(Sketcher.Constraint("Symmetric", 4, 3, 20, 3, -1, 1))
sketch19.addConstraint(Sketcher.Constraint("Symmetric", 5, 3, 21, 3, -1, 1))
sketch19.addConstraint(Sketcher.Constraint("Symmetric", 6, 3, 22, 3, -1, 1))
sketch19.addConstraint(Sketcher.Constraint("Symmetric", 7, 3, 23, 3, -1, 1))
sketch19.addConstraint(Sketcher.Constraint("Symmetric", 8, 3, 24, 3, -1, 1))
sketch19.addConstraint(Sketcher.Constraint("Symmetric", 9, 3, 25, 3, -1, 1))
sketch19.addConstraint(Sketcher.Constraint("Symmetric", 10, 3, 26, 3, -1, 1))
sketch19.addConstraint(Sketcher.Constraint("Symmetric", 11, 3, 27, 3, -1, 1))
sketch19.addConstraint(Sketcher.Constraint("Symmetric", 12, 3, 28, 3, -1, 1))
sketch19.addConstraint(Sketcher.Constraint("Symmetric", 13, 3, 29, 3, -1, 1))
sketch19.addConstraint(Sketcher.Constraint("Symmetric", 14, 3, 30, 3, -1, 1))
sketch19.addConstraint(Sketcher.Constraint("Symmetric", 15, 3, 31, 3, -1, 1))
sketch19.addConstraint(Sketcher.Constraint("Symmetric", 15, 3, 17, 3, -2))
sketch19.addConstraint(Sketcher.Constraint("Symmetric", 14, 3, 18, 3, -2))
sketch19.addConstraint(Sketcher.Constraint("Symmetric", 13, 3, 19, 3, -2))
sketch19.addConstraint(Sketcher.Constraint("Symmetric", 12, 3, 20, 3, -2))
sketch19.addConstraint(Sketcher.Constraint("Symmetric", 11, 3, 21, 3, -2))
sketch19.addConstraint(Sketcher.Constraint("Symmetric", 10, 3, 22, 3, -2))
sketch19.addConstraint(Sketcher.Constraint("Symmetric", 9, 3, 23, 3, -2))
sketch19.addConstraint(Sketcher.Constraint("PointOnObject", 0, 3, -2))
sketch19.addConstraint(Sketcher.Constraint("PointOnObject", 8, 3, -1))
sketch19.addConstraint(Sketcher.Constraint("Diameter", 0, Q("0.03125 in")))
sketch19.addConstraint(Sketcher.Constraint("DistanceY", -1, 1, 0, 3, Q("0.65 in")))
sketch19.addConstraint(Sketcher.Constraint("DistanceX", -1, 1, 8, 3, Q("0.65 in")))
sketch19.addConstraint(Sketcher.Constraint("DistanceY", 3, 3, 1, 3, 2.465202))
sketch19.addConstraint(Sketcher.Constraint("DistanceX", 3, 3, 5, 3, 4.555099))
sketch19.addConstraint(Sketcher.Constraint("DistanceY", 5, 3, 3, 3, 4.555099))
sketch19.addConstraint(Sketcher.Constraint("DistanceX", 5, 3, 7, 3, 2.465202))
sketch19.addConstraint(Sketcher.Constraint("DistanceX", -1, 1, 1, 3, 3.220941))
sketch19.addConstraint(Sketcher.Constraint("DistanceY", -1, 1, 2, 3, 15.253251))
sketch19.addConstraint(Sketcher.Constraint("DistanceX", -1, 1, 6, 3, 15.253251))
sketch19.addConstraint(Sketcher.Constraint("DistanceY", -1, 1, 7, 3, 3.220941))
sketch19.addConstraint(Sketcher.Constraint("DistanceX", 2, 3, 3, 3, 2.854361))
sketch19.addConstraint(Sketcher.Constraint("DistanceX", 3, 3, 4, 3, 2.501868))
sketch19.addConstraint(Sketcher.Constraint("DistanceY", 4, 3, 3, 3, 2.05323))
sketch19.addConstraint(Sketcher.Constraint("DistanceY", 4, 3, 2, 3, 3.578918))
sketch19.addConstraint(Sketcher.Constraint("DistanceX", 1, 3, 4, 3, 8.453392))
sketch19.addConstraint(Sketcher.Constraint("DistanceY", 6, 3, 5, 3, 2.854361))
sketch19.setExpression("Constraints[56]", "Params.sketch19_diameter")
pocket18 = doc.addObject("PartDesign::Pocket", "Pocket017")
body.addObject(pocket18)
pocket18.Profile = sketch19
pocket18.setExpression("Length", "Params.pocket18_length")

doc.recompute()
